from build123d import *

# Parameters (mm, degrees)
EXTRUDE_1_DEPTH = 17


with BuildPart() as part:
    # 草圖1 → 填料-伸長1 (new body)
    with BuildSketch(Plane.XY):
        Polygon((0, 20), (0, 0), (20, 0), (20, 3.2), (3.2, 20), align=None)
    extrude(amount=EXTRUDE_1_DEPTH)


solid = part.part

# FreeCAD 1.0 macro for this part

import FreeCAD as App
import Part
import Sketcher
Q = App.Units.Quantity

doc = App.newDocument("Part")
body = doc.addObject("PartDesign::Body", "Body")

# Sketch on XY plane
sketch1 = doc.addObject("Sketcher::SketchObject", "Sketch")
body.addObject(sketch1)
sketch1.AttachmentSupport = (doc.XY_Plane, [""])
sketch1.MapMode = "FlatFace"
sketch1.addGeometry(Part.LineSegment(App.Vector(0, 20, 0), App.Vector(0, 0, 0)), False)
sketch1.addGeometry(Part.LineSegment(App.Vector(0, 0, 0), App.Vector(20, 0, 0)), False)
sketch1.addGeometry(Part.LineSegment(App.Vector(20, 0, 0), App.Vector(20, 3.2, 0)), False)
sketch1.addGeometry(Part.LineSegment(App.Vector(20, 3.2, 0), App.Vector(3.2, 20, 0)), False)
sketch1.addGeometry(Part.LineSegment(App.Vector(3.2, 20, 0), App.Vector(0, 20, 0)), False)
sketch1.addConstraint(Sketcher.Constraint("Coincident", 0, 2, 1, 1))
sketch1.addConstraint(Sketcher.Constraint("Coincident", 1, 2, 2, 1))
sketch1.addConstraint(Sketcher.Constraint("Coincident", 2, 2, 3, 1))
sketch1.addConstraint(Sketcher.Constraint("Coincident", 3, 2, 4, 1))
sketch1.addConstraint(Sketcher.Constraint("Coincident", 4, 2, 0, 1))
sketch1.addConstraint(Sketcher.Constraint("Vertical", 0))
sketch1.addConstraint(Sketcher.Constraint("Horizontal", 1))
sketch1.addConstraint(Sketcher.Constraint("Vertical", 2))
sketch1.addConstraint(Sketcher.Constraint("Horizontal", 4))
sketch1.addConstraint(Sketcher.Constraint("Coincident", 0, 2, -1, 1))
sketch1.addConstraint(Sketcher.Constraint("Equal", 1, 0))
sketch1.addConstraint(Sketcher.Constraint("Equal", 4, 2))
sketch1.addConstraint(Sketcher.Constraint("DistanceX", 1, 1, 1, 2, Q("20 mm")))
sketch1.addConstraint(Sketcher.Constraint("DistanceX", 4, 2, 4, 1, Q("3.2 mm")))
pad1 = doc.addObject("PartDesign::Pad", "Pad")
body.addObject(pad1)
pad1.Profile = sketch1
pad1.Length = 17

doc.recompute()
